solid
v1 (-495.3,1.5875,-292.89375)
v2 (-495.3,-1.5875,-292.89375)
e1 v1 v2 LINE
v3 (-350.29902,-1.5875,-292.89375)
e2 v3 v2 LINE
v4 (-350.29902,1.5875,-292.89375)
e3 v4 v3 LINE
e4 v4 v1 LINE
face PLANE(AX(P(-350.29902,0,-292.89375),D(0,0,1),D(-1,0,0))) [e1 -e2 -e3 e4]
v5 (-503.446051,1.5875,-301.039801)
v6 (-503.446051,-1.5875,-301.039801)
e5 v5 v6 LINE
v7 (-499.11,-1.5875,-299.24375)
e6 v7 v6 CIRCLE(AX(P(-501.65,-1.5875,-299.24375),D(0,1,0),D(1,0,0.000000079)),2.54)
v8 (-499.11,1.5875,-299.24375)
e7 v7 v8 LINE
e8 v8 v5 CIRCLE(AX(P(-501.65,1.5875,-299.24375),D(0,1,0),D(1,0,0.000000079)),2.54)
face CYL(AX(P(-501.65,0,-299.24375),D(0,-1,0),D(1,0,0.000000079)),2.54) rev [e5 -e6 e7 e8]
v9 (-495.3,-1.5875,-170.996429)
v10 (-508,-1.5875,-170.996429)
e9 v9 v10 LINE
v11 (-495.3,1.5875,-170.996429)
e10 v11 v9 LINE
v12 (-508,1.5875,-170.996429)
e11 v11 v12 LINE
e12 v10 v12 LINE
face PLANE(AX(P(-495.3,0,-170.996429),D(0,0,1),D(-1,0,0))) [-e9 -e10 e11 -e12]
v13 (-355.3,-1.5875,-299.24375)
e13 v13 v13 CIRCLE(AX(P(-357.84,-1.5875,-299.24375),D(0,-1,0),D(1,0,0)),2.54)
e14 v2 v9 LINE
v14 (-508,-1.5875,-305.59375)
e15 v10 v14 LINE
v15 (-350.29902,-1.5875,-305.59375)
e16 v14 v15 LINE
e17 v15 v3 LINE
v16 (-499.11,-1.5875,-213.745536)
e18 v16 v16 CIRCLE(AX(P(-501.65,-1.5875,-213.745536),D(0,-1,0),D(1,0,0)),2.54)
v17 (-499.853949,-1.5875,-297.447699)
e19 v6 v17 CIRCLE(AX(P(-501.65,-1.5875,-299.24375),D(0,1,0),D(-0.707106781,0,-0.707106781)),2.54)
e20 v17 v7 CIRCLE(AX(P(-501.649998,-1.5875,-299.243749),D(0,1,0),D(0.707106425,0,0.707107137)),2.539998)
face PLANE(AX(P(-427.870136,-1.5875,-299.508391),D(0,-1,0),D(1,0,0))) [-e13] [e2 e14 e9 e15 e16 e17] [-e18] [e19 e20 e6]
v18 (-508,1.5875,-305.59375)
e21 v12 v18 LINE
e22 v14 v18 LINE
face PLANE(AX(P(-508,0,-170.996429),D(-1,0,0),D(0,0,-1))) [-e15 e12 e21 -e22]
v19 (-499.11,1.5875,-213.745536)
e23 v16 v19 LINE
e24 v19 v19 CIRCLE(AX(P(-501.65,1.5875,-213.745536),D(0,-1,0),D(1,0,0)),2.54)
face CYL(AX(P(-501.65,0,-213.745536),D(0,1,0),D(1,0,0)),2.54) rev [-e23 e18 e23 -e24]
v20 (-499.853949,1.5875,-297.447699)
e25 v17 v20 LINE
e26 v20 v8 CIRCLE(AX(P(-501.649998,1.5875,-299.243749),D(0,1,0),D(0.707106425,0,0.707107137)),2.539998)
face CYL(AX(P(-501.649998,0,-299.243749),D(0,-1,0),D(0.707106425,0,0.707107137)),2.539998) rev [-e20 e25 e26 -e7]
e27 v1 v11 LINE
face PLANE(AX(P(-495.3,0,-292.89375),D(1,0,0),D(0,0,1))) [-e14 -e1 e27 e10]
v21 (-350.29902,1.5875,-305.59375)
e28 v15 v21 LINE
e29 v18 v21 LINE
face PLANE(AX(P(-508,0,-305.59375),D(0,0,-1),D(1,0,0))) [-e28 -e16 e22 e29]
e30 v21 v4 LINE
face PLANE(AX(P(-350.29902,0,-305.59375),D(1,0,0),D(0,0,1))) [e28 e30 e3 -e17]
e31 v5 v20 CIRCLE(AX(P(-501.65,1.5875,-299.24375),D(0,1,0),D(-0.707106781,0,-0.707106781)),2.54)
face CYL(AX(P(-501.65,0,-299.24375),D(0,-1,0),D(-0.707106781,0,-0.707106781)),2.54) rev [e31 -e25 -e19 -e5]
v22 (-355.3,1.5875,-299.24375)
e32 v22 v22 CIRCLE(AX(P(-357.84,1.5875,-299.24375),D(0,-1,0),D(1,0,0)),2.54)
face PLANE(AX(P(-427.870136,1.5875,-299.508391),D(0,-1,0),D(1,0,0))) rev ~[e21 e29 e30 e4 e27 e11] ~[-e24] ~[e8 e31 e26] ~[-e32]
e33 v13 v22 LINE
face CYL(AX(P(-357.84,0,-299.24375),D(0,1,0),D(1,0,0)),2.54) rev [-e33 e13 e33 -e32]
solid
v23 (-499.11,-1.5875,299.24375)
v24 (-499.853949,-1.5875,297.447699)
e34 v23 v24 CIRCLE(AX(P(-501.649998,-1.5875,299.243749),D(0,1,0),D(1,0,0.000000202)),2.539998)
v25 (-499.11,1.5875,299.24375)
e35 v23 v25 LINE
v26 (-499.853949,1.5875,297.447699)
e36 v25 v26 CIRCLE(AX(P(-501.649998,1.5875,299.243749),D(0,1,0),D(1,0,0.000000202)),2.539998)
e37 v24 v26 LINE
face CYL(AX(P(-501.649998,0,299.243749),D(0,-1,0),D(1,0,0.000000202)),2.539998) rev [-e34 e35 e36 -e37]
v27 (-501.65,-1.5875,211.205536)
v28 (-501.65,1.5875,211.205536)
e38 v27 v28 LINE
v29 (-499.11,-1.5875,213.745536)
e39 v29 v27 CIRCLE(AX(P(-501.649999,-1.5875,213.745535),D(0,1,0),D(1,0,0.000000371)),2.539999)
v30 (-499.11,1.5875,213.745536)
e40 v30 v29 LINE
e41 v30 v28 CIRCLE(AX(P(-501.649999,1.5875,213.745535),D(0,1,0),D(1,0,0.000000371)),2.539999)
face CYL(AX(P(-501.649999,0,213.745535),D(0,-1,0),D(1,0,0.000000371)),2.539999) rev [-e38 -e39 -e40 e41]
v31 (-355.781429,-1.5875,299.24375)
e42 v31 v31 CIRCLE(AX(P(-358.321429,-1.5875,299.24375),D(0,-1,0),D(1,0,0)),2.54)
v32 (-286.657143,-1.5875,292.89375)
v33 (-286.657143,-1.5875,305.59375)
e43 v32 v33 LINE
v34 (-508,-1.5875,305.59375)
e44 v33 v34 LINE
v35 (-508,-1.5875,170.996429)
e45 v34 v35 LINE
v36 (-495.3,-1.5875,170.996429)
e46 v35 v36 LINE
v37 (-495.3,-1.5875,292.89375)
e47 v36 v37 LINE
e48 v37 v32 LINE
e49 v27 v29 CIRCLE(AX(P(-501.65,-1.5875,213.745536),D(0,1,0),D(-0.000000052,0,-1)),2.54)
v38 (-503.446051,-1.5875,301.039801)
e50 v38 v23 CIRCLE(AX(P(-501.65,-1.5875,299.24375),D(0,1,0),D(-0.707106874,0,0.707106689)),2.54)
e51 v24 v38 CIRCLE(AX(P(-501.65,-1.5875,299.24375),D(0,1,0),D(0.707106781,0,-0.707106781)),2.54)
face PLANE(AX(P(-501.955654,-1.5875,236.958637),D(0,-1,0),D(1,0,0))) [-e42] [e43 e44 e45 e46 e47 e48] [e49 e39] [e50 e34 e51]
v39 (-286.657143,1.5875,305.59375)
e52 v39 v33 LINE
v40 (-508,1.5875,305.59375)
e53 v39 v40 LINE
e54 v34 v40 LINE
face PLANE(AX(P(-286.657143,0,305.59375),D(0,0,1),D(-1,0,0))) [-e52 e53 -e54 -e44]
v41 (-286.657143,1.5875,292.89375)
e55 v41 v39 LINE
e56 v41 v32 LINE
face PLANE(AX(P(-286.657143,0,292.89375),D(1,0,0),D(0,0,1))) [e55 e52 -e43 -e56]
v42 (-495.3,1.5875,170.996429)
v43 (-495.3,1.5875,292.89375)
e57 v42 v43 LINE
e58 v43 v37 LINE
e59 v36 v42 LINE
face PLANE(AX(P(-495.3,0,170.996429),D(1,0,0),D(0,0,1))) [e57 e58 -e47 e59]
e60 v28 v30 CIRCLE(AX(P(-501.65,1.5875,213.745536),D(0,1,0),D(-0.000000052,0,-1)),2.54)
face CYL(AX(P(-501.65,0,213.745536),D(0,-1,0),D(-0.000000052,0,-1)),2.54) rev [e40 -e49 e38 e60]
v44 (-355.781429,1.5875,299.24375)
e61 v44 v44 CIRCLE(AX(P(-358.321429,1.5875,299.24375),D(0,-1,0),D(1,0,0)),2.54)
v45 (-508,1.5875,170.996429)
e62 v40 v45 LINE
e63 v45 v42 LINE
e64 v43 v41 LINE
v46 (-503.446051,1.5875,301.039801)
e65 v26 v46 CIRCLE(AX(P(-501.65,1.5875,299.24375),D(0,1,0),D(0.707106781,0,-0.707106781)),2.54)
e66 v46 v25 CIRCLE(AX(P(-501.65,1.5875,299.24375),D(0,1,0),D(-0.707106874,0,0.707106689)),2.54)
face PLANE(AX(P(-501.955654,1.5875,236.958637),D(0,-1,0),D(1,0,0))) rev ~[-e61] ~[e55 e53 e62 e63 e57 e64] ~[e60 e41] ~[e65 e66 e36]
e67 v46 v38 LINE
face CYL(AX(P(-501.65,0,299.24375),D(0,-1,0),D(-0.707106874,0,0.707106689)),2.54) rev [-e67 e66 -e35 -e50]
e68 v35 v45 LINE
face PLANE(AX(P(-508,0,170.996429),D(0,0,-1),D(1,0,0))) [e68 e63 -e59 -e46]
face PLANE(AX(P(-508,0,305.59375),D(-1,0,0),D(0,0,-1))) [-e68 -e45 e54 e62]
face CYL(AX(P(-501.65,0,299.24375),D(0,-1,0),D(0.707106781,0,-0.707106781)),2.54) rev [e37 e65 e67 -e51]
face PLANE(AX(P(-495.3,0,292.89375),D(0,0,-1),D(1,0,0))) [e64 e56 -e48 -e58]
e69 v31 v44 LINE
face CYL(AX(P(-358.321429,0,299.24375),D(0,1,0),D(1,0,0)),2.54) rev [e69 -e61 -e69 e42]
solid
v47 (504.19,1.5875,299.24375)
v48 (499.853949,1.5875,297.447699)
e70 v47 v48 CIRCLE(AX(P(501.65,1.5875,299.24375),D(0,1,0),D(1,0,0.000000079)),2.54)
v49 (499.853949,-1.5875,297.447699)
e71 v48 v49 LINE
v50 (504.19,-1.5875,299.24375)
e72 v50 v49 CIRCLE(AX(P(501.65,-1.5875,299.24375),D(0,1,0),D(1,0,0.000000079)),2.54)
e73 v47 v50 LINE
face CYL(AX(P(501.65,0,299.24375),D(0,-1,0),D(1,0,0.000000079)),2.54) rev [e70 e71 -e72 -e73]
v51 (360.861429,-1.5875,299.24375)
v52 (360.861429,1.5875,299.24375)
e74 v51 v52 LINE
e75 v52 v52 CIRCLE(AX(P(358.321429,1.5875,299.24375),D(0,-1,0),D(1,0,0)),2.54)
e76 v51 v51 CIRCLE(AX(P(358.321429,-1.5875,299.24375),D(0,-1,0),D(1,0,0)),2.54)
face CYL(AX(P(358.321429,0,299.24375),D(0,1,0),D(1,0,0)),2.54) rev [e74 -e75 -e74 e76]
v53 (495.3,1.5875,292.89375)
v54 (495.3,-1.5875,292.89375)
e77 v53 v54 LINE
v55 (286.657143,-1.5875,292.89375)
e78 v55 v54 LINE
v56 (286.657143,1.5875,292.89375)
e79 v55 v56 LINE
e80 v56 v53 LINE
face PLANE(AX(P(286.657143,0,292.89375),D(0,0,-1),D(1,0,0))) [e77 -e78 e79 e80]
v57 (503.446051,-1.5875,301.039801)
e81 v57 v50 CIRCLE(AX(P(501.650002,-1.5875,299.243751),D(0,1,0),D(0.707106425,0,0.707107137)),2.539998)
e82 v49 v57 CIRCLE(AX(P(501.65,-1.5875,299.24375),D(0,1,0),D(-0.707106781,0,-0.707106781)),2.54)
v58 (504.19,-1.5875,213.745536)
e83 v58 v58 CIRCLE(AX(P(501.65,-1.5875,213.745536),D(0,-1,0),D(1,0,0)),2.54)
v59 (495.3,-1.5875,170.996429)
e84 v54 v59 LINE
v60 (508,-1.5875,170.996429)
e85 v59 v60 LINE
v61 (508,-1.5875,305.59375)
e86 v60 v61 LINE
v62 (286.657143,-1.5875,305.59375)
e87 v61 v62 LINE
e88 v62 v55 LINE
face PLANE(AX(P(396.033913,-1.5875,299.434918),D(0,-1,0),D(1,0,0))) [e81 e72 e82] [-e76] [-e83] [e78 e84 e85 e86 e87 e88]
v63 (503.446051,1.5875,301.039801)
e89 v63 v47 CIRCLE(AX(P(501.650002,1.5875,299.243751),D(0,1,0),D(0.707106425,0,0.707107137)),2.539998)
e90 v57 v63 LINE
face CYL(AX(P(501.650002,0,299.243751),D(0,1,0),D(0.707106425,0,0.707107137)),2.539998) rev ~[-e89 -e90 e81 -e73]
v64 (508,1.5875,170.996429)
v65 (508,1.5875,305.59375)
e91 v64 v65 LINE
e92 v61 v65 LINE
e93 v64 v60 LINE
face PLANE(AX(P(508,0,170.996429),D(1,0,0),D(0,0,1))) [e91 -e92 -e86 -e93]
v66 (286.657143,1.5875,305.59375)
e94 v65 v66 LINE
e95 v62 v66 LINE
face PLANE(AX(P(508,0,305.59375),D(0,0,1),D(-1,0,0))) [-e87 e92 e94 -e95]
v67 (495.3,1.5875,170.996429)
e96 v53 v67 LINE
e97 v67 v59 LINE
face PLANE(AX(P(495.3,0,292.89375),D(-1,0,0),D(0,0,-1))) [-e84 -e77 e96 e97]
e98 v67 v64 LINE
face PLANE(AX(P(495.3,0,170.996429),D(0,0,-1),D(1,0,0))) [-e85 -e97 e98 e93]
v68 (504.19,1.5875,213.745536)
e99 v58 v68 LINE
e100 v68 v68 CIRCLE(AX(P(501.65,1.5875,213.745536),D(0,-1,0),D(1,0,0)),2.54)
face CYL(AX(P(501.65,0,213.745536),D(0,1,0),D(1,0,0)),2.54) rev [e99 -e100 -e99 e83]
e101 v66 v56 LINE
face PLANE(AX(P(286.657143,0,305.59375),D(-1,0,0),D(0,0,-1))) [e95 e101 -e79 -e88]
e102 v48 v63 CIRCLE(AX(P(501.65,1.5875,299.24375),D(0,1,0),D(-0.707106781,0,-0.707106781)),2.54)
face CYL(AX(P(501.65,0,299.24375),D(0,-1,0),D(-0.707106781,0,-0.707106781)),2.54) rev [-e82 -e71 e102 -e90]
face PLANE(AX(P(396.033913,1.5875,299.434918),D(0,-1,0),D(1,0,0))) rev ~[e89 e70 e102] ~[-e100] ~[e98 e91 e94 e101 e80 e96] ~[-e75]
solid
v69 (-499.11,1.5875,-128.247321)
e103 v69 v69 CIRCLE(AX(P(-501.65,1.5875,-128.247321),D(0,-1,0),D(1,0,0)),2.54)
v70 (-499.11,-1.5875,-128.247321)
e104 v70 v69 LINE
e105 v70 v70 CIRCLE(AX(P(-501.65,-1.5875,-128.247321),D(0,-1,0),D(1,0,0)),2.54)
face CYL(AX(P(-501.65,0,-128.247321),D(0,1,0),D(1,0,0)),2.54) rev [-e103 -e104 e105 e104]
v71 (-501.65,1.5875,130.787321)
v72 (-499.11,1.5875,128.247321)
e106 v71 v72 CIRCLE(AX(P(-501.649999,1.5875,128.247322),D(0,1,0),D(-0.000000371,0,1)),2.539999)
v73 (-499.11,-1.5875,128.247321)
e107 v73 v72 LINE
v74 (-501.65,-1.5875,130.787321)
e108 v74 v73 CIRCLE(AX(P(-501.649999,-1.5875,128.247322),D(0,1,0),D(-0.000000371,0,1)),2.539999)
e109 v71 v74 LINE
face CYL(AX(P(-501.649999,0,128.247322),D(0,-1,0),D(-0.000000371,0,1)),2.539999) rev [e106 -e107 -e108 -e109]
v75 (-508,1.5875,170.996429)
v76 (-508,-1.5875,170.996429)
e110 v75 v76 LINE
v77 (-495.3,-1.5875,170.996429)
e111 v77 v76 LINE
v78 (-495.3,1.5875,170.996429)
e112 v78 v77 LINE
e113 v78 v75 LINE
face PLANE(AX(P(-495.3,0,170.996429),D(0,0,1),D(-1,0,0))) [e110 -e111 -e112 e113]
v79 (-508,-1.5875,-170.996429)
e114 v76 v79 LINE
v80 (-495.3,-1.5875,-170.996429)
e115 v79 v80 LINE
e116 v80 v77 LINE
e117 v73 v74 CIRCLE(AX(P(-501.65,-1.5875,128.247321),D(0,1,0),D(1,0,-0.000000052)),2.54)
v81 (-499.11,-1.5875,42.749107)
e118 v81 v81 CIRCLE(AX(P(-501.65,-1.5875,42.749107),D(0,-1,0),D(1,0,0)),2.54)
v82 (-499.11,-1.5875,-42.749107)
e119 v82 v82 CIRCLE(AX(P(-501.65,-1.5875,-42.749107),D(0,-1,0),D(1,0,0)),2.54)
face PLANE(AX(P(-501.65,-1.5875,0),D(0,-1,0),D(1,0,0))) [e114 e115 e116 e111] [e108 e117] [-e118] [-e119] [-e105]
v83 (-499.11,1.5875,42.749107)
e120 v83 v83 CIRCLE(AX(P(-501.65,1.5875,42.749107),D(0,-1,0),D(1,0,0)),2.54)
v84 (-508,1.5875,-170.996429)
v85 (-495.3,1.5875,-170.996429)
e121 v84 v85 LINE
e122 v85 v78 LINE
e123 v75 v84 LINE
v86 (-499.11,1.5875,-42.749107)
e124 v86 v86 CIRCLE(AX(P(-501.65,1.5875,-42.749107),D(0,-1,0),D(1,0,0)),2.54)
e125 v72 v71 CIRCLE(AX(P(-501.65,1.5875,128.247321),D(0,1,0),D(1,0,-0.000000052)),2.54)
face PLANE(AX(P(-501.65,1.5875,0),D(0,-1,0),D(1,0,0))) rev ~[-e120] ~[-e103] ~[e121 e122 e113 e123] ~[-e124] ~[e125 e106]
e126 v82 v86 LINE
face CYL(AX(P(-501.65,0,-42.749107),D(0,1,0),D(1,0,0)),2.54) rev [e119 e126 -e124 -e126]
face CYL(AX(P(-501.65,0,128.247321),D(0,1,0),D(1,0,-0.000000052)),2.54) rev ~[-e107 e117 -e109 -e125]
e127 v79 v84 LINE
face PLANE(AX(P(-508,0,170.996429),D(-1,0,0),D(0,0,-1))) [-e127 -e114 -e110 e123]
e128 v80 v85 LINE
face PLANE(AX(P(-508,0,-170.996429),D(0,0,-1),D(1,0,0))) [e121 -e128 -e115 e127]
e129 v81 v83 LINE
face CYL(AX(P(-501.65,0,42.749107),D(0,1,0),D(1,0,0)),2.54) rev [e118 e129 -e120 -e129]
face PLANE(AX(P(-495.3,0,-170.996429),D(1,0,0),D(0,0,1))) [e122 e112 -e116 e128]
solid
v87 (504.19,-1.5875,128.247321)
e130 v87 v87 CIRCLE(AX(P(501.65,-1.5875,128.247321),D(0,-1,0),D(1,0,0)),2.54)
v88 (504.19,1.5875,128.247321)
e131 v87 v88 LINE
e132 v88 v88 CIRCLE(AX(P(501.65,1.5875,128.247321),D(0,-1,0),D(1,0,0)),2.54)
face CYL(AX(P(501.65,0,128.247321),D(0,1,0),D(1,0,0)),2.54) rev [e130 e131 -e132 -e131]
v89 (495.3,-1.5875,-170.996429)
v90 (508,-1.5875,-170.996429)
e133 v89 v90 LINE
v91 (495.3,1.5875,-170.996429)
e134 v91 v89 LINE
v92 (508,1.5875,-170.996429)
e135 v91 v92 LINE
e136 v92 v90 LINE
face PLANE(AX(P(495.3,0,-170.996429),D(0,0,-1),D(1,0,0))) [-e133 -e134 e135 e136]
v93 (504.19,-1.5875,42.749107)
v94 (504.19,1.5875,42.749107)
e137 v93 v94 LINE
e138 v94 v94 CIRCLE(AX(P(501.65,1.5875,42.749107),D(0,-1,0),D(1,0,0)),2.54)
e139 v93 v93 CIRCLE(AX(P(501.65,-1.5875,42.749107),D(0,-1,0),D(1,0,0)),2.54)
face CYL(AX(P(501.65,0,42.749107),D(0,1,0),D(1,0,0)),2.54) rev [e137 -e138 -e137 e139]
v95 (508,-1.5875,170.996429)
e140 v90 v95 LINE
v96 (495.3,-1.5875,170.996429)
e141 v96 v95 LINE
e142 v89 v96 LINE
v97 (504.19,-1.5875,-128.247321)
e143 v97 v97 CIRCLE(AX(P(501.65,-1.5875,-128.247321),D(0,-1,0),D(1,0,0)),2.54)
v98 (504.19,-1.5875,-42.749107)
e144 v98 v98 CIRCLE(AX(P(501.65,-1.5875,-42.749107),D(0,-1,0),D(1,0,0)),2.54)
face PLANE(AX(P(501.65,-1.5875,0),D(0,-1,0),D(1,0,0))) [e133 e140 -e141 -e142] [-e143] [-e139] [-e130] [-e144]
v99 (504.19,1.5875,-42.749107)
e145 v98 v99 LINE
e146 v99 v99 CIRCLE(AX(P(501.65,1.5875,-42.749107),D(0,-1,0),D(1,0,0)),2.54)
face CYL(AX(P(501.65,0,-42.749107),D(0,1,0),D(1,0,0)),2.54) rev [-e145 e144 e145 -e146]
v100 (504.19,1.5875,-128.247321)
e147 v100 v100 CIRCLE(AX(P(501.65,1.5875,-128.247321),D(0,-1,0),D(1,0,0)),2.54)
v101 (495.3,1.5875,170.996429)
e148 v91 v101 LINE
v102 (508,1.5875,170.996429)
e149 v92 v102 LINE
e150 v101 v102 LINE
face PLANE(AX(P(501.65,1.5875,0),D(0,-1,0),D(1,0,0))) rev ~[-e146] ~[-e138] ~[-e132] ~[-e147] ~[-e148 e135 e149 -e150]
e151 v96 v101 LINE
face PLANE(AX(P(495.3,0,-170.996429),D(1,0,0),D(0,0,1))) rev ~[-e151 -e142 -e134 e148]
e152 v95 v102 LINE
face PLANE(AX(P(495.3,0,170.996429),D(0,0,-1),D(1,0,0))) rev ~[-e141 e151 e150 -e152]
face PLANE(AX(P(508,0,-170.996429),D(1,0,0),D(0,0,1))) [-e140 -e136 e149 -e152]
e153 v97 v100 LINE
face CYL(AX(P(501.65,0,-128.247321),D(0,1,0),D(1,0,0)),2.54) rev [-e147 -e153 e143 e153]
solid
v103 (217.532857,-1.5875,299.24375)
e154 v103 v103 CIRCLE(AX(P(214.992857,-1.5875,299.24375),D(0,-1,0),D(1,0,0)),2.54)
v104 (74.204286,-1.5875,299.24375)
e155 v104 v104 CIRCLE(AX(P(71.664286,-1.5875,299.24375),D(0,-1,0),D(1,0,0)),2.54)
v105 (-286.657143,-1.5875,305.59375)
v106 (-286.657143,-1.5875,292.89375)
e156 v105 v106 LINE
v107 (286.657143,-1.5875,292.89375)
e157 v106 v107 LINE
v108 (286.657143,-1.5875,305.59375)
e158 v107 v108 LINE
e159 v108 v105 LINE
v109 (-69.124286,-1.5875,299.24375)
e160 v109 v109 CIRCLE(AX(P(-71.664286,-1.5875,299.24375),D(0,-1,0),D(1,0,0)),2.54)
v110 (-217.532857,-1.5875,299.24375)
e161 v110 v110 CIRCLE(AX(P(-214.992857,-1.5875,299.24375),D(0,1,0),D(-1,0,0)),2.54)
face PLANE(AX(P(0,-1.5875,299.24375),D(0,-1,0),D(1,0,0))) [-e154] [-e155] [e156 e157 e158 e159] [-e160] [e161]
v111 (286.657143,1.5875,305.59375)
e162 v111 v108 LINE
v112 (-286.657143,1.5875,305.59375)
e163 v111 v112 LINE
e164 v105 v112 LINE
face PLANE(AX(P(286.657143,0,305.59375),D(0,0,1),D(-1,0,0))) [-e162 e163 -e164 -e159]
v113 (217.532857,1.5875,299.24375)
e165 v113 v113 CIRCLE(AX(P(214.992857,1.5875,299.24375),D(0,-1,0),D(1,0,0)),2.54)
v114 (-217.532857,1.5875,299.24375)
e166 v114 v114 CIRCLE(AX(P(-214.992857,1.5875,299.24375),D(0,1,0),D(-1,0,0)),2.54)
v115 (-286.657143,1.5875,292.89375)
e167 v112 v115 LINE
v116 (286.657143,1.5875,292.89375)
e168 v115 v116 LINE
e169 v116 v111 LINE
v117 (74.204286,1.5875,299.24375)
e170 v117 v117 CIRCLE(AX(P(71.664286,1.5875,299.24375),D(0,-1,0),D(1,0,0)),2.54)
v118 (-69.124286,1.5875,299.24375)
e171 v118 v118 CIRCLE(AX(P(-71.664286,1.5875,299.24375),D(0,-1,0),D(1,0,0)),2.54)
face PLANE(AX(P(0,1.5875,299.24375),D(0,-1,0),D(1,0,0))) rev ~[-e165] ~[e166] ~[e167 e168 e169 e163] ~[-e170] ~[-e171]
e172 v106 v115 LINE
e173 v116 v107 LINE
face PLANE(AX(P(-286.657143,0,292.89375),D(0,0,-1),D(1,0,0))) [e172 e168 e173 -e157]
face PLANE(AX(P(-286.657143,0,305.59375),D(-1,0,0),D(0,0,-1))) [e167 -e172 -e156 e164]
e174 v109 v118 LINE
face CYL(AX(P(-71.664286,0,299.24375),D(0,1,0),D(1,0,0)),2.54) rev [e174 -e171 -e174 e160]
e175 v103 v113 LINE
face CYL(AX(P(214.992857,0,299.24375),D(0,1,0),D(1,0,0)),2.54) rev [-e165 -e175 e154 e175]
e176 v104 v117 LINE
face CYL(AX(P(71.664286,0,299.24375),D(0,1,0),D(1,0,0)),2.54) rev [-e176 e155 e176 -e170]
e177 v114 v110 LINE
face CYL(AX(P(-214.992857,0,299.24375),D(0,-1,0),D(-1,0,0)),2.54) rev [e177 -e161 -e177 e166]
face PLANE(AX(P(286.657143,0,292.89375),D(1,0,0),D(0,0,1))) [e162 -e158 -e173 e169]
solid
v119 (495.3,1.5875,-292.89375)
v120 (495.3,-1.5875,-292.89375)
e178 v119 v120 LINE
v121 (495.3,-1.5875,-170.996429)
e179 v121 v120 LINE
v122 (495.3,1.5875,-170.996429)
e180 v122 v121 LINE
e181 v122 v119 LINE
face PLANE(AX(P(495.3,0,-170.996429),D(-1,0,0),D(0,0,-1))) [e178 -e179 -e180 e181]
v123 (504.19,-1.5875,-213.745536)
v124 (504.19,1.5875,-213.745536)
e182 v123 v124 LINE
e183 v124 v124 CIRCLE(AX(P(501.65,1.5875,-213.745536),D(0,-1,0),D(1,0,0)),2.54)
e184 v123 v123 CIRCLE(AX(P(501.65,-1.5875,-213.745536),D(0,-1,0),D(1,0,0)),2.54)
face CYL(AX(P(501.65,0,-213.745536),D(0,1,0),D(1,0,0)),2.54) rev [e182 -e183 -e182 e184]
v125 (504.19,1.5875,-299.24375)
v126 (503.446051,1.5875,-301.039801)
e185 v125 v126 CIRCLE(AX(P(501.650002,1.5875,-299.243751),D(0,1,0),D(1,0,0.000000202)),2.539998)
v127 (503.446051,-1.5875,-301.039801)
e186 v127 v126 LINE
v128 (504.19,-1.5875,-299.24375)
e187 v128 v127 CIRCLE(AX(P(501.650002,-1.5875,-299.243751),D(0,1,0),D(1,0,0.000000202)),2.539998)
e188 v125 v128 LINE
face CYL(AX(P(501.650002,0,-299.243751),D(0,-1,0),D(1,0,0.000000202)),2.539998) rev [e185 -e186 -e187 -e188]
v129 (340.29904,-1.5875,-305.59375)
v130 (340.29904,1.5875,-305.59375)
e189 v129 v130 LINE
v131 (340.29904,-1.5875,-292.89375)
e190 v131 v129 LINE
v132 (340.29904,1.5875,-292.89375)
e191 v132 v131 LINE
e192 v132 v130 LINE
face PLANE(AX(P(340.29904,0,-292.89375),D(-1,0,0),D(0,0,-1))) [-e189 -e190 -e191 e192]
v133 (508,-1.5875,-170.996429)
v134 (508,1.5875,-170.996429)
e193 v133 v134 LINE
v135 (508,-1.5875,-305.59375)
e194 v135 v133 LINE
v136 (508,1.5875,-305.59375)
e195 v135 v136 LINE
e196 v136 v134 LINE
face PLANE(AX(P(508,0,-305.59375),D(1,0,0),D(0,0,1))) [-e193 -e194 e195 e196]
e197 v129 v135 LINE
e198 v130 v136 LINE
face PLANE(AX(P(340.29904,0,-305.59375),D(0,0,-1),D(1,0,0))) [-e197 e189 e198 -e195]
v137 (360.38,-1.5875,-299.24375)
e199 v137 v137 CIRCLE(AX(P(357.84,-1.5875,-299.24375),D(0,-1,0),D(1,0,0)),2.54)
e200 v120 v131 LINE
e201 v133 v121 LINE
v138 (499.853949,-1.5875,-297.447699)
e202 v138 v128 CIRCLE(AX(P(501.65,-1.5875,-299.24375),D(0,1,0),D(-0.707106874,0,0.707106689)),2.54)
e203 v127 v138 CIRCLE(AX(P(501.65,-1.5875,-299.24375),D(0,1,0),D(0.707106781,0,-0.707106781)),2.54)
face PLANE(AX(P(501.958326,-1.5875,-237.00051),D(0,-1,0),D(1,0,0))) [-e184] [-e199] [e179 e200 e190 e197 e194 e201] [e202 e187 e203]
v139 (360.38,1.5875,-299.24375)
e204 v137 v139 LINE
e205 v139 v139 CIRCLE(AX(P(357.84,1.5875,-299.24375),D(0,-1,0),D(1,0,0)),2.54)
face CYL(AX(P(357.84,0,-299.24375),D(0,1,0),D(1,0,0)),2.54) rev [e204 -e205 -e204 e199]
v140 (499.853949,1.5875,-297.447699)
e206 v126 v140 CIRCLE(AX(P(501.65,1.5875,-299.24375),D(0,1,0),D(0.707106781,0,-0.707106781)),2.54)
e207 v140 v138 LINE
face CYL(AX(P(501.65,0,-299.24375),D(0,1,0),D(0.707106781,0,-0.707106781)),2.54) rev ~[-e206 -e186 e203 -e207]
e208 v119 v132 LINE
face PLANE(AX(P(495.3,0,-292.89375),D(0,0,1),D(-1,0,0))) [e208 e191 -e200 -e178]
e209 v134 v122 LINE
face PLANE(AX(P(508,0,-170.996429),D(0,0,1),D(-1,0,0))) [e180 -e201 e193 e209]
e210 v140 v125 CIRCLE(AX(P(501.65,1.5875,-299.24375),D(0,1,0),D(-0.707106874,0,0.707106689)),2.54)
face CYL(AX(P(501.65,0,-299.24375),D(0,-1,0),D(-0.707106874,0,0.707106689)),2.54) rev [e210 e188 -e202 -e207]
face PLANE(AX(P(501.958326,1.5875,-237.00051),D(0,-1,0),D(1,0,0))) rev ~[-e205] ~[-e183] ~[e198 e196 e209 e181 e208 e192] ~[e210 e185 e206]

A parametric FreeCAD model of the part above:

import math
import FreeCAD as App
import Part
import Sketcher
from FreeCAD import Vector
Q = App.Units.Quantity

doc = App.newDocument("Part")
body = doc.addObject("PartDesign::Body", "Body")

# Sketch on XZ plane
sketch1 = doc.addObject("Sketcher::SketchObject", "Sketch")
body.addObject(sketch1)
sketch1.AttachmentSupport = (doc.XZ_Plane, [""])
sketch1.MapMode = "FlatFace"
sketch1.addGeometry([
    Part.LineSegment(Vector(-495.3, 170.996429, 0), Vector(-495.3, 292.89375, 0)),  # 0
    Part.LineSegment(Vector(-495.3, 292.89375, 0), Vector(-286.657143, 292.89375, 0)),  # 1
    Part.LineSegment(Vector(-286.657143, 292.89375, 0), Vector(-286.657143, 305.59375, 0)),  # 2
    Part.LineSegment(Vector(-286.657143, 305.59375, 0), Vector(-508, 305.59375, 0)),  # 3
    Part.LineSegment(Vector(-508, 305.59375, 0), Vector(-508, 170.996429, 0)),  # 4
    Part.LineSegment(Vector(-508, 170.996429, 0), Vector(-495.3, 170.996429, 0)),  # 5
    Part.ArcOfCircle(Part.Circle(Vector(-501.65, 213.745536, 0), Vector(0, 0, 1), 2.54), math.radians(0.000003), math.radians(269.999997)),  # 6
    Part.ArcOfCircle(Part.Circle(Vector(-501.649999, 213.745535, 0), Vector(0, 0, 1), 2.539999), math.radians(-90.000021), math.radians(0.000021)),  # 7
    Part.ArcOfCircle(Part.Circle(Vector(-501.65, 299.24375, 0), Vector(0, 0, 1), 2.54), math.radians(135), math.radians(315)),  # 8
    Part.ArcOfCircle(Part.Circle(Vector(-501.65, 299.24375, 0), Vector(0, 0, 1), 2.54), math.radians(-0.000005), math.radians(135.000007)),  # 9
    Part.ArcOfCircle(Part.Circle(Vector(-501.649998, 299.243749, 0), Vector(0, 0, 1), 2.539998), math.radians(-45.000029), math.radians(0.000012)),  # 10
    Part.Circle(Vector(-358.321429, 299.24375, 0), Vector(0, 0, 1), 2.54),  # 11
], False)
sketch1.addConstraint([
    Sketcher.Constraint("Coincident", 0, 2, 1, 1),
    Sketcher.Constraint("Coincident", 1, 2, 2, 1),
    Sketcher.Constraint("Coincident", 2, 2, 3, 1),
    Sketcher.Constraint("Coincident", 3, 2, 4, 1),
    Sketcher.Constraint("Coincident", 4, 2, 5, 1),
    Sketcher.Constraint("Coincident", 5, 2, 0, 1),
    Sketcher.Constraint("Tangent", 6, 1, 7, 2),
    Sketcher.Constraint("Coincident", 7, 1, 6, 2),
    Sketcher.Constraint("Tangent", 8, 1, 9, 2),
    Sketcher.Constraint("Tangent", 9, 1, 10, 2),
    Sketcher.Constraint("Tangent", 10, 1, 8, 2),
    Sketcher.Constraint("Vertical", 0),
    Sketcher.Constraint("Horizontal", 1),
    Sketcher.Constraint("Vertical", 2),
    Sketcher.Constraint("Horizontal", 3),
    Sketcher.Constraint("Vertical", 4),
    Sketcher.Constraint("Horizontal", 5),
    Sketcher.Constraint("Equal", 7, 8),
    Sketcher.Constraint("Equal", 9, 11),
    Sketcher.Constraint("Horizontal", 10, 3, 11, 3),
    Sketcher.Constraint("Horizontal", 7, 3, 6, 1),
    Sketcher.Constraint("Horizontal", 11, 3, 9, 1),
    Sketcher.Constraint("Vertical", 7, 3, 8, 3),
    Sketcher.Constraint("Vertical", 9, 3, 7, 1),
    Sketcher.Constraint("Equal", 5, 2),
    Sketcher.Constraint("Diameter", 11, Q("0.2 in")),
    Sketcher.Constraint("DistanceX", 5, 1, 5, 2, Q("0.5 in")),
    Sketcher.Constraint("DistanceX", 3, 2, -1, 1, Q("20 in")),
    Sketcher.Constraint("DistanceX", 6, 3, -1, 1, Q("19.75 in")),
    Sketcher.Constraint("DistanceY", 0, 2, 10, 3, Q("0.25 in")),
    Sketcher.Constraint("DistanceY", -1, 1, 8, 3, Q("11.78125 in")),
    Sketcher.Constraint("DistanceY", 0, 1, 0, 2, 121.897321),
    Sketcher.Constraint("DistanceY", -1, 1, 8, 1, 301.039801),
    Sketcher.Constraint("DistanceY", -1, 1, 10, 1, 297.447699),
    Sketcher.Constraint("DistanceX", 1, 1, 1, 2, 208.642857),
    Sketcher.Constraint("DistanceX", 11, 3, -1, 1, 358.321429),
    Sketcher.Constraint("DistanceY", -1, 1, 6, 3, 213.745536),
])
pad1 = doc.addObject("PartDesign::Pad", "Pad")
body.addObject(pad1)
pad1.Profile = sketch1
pad1.Length = Q("0.125 in")
pad1.Midplane = True
body2 = doc.addObject("PartDesign::Body", "Body001")

# Sketch on XZ plane
sketch2 = doc.addObject("Sketcher::SketchObject", "Sketch001")
body2.addObject(sketch2)
sketch2.AttachmentSupport = (doc.getObject("XZ_Plane001"), [""])
sketch2.MapMode = "FlatFace"
sketch2.addGeometry([
    Part.LineSegment(Vector(-286.657143, 292.89375, 0), Vector(286.657143, 292.89375, 0)),  # 0
    Part.LineSegment(Vector(286.657143, 292.89375, 0), Vector(286.657143, 305.59375, 0)),  # 1
    Part.LineSegment(Vector(286.657143, 305.59375, 0), Vector(-286.657143, 305.59375, 0)),  # 2
    Part.LineSegment(Vector(-286.657143, 305.59375, 0), Vector(-286.657143, 292.89375, 0)),  # 3
    Part.Circle(Vector(-214.992857, 299.24375, 0), Vector(0, 0, 1), 2.54),  # 4
    Part.Circle(Vector(-71.664286, 299.24375, 0), Vector(0, 0, 1), 2.54),  # 5
    Part.Circle(Vector(71.664286, 299.24375, 0), Vector(0, 0, 1), 2.54),  # 6
    Part.Circle(Vector(214.992857, 299.24375, 0), Vector(0, 0, 1), 2.54),  # 7
], False)
sketch2.addConstraint([
    Sketcher.Constraint("Coincident", 0, 2, 1, 1),
    Sketcher.Constraint("Coincident", 1, 2, 2, 1),
    Sketcher.Constraint("Coincident", 2, 2, 3, 1),
    Sketcher.Constraint("Coincident", 3, 2, 0, 1),
    Sketcher.Constraint("Horizontal", 0),
    Sketcher.Constraint("Vertical", 1),
    Sketcher.Constraint("Horizontal", 2),
    Sketcher.Constraint("Vertical", 3),
    Sketcher.Constraint("Equal", 4, 5),
    Sketcher.Constraint("Equal", 5, 6),
    Sketcher.Constraint("Equal", 6, 7),
    Sketcher.Constraint("Symmetric", 5, 3, 6, 3, -2),
    Sketcher.Constraint("Symmetric", 4, 3, 7, 3, -2),
    Sketcher.Constraint("Horizontal", 4, 3, 5, 3),
    Sketcher.Constraint("Diameter", 4, Q("0.2 in")),
    Sketcher.Constraint("DistanceY", 1, 1, 1, 2, Q("0.5 in")),
    Sketcher.Constraint("DistanceY", 0, 2, 7, 3, Q("0.25 in")),
    Sketcher.Constraint("DistanceX", 4, 3, 0, 2, Q("19.75 in")),
    Sketcher.Constraint("DistanceX", 2, 2, 7, 3, Q("19.75 in")),
    Sketcher.Constraint("DistanceY", -1, 1, 4, 3, Q("11.78125 in")),
    Sketcher.Constraint("DistanceX", 0, 1, 0, 2, 573.314286),
    Sketcher.Constraint("DistanceX", 4, 3, 5, 3, 143.328571),
])
pad2 = doc.addObject("PartDesign::Pad", "Pad001")
body2.addObject(pad2)
pad2.Profile = sketch2
pad2.Length = Q("0.125 in")
pad2.Midplane = True
body3 = doc.addObject("PartDesign::Body", "Body002")

# Sketch on XZ plane
sketch3 = doc.addObject("Sketcher::SketchObject", "Sketch002")
body3.addObject(sketch3)
sketch3.AttachmentSupport = (doc.getObject("XZ_Plane002"), [""])
sketch3.MapMode = "FlatFace"
sketch3.addGeometry([
    Part.LineSegment(Vector(286.657143, 292.89375, 0), Vector(495.3, 292.89375, 0)),  # 0
    Part.LineSegment(Vector(495.3, 292.89375, 0), Vector(495.3, 170.996429, 0)),  # 1
    Part.LineSegment(Vector(495.3, 170.996429, 0), Vector(508, 170.996429, 0)),  # 2
    Part.LineSegment(Vector(508, 170.996429, 0), Vector(508, 305.59375, 0)),  # 3
    Part.LineSegment(Vector(508, 305.59375, 0), Vector(286.657143, 305.59375, 0)),  # 4
    Part.LineSegment(Vector(286.657143, 305.59375, 0), Vector(286.657143, 292.89375, 0)),  # 5
    Part.Circle(Vector(501.65, 213.745536, 0), Vector(0, 0, 1), 2.54),  # 6
    Part.Circle(Vector(358.321429, 299.24375, 0), Vector(0, 0, 1), 2.54),  # 7
    Part.ArcOfCircle(Part.Circle(Vector(501.65, 299.24375, 0), Vector(0, 0, 1), 2.54), math.radians(45), math.radians(225)),  # 8
    Part.ArcOfCircle(Part.Circle(Vector(501.650002, 299.243751, 0), Vector(0, 0, 1), 2.539998), math.radians(-0.000012), math.radians(45.000029)),  # 9
    Part.ArcOfCircle(Part.Circle(Vector(501.65, 299.24375, 0), Vector(0, 0, 1), 2.54), math.radians(-135.000007), math.radians(0.000005)),  # 10
], False)
sketch3.addConstraint([
    Sketcher.Constraint("Coincident", 0, 2, 1, 1),
    Sketcher.Constraint("Coincident", 1, 2, 2, 1),
    Sketcher.Constraint("Coincident", 2, 2, 3, 1),
    Sketcher.Constraint("Coincident", 3, 2, 4, 1),
    Sketcher.Constraint("Coincident", 4, 2, 5, 1),
    Sketcher.Constraint("Coincident", 5, 2, 0, 1),
    Sketcher.Constraint("Tangent", 8, 1, 9, 2),
    Sketcher.Constraint("Tangent", 9, 1, 10, 2),
    Sketcher.Constraint("Tangent", 10, 1, 8, 2),
    Sketcher.Constraint("Horizontal", 0),
    Sketcher.Constraint("Vertical", 1),
    Sketcher.Constraint("Horizontal", 2),
    Sketcher.Constraint("Vertical", 3),
    Sketcher.Constraint("Horizontal", 4),
    Sketcher.Constraint("Vertical", 5),
    Sketcher.Constraint("Equal", 6, 7),
    Sketcher.Constraint("Equal", 7, 8),
    Sketcher.Constraint("Horizontal", 7, 3, 8, 3),
    Sketcher.Constraint("Horizontal", 10, 3, 9, 1),
    Sketcher.Constraint("Vertical", 6, 3, 8, 3),
    Sketcher.Constraint("Equal", 2, 5),
    Sketcher.Constraint("Diameter", 6, Q("0.2 in")),
    Sketcher.Constraint("DistanceX", 2, 1, 2, 2, Q("0.5 in")),
    Sketcher.Constraint("DistanceX", -1, 1, 2, 2, Q("20 in")),
    Sketcher.Constraint("DistanceX", -1, 1, 6, 3, Q("19.75 in")),
    Sketcher.Constraint("DistanceY", 0, 2, 8, 3, Q("0.25 in")),
    Sketcher.Constraint("DistanceY", -1, 1, 7, 3, Q("11.78125 in")),
    Sketcher.Constraint("DistanceY", 1, 2, 1, 1, 121.897321),
    Sketcher.Constraint("DistanceY", -1, 1, 8, 1, 301.039801),
    Sketcher.Constraint("DistanceY", -1, 1, 10, 1, 297.447699),
    Sketcher.Constraint("DistanceX", 0, 1, 0, 2, 208.642857),
    Sketcher.Constraint("DistanceX", -1, 1, 7, 3, 358.321429),
    Sketcher.Constraint("DistanceY", -1, 1, 6, 3, 213.745536),
])
pad3 = doc.addObject("PartDesign::Pad", "Pad002")
body3.addObject(pad3)
pad3.Profile = sketch3
pad3.Length = Q("0.125 in")
pad3.Midplane = True
body4 = doc.addObject("PartDesign::Body", "Body003")

# Sketch on XZ plane
sketch4 = doc.addObject("Sketcher::SketchObject", "Sketch003")
body4.addObject(sketch4)
sketch4.AttachmentSupport = (doc.getObject("XZ_Plane003"), [""])
sketch4.MapMode = "FlatFace"
sketch4.addGeometry([
    Part.LineSegment(Vector(495.3, 170.996429, 0), Vector(495.3, -170.996429, 0)),  # 0
    Part.LineSegment(Vector(495.3, -170.996429, 0), Vector(508, -170.996429, 0)),  # 1
    Part.LineSegment(Vector(508, -170.996429, 0), Vector(508, 170.996429, 0)),  # 2
    Part.LineSegment(Vector(508, 170.996429, 0), Vector(495.3, 170.996429, 0)),  # 3
    Part.Circle(Vector(501.65, -128.247321, 0), Vector(0, 0, 1), 2.54),  # 4
    Part.Circle(Vector(501.65, -42.749107, 0), Vector(0, 0, 1), 2.54),  # 5
    Part.Circle(Vector(501.65, 42.749107, 0), Vector(0, 0, 1), 2.54),  # 6
    Part.Circle(Vector(501.65, 128.247321, 0), Vector(0, 0, 1), 2.54),  # 7
], False)
sketch4.addConstraint([
    Sketcher.Constraint("Coincident", 0, 2, 1, 1),
    Sketcher.Constraint("Coincident", 1, 2, 2, 1),
    Sketcher.Constraint("Coincident", 2, 2, 3, 1),
    Sketcher.Constraint("Coincident", 3, 2, 0, 1),
    Sketcher.Constraint("Vertical", 0),
    Sketcher.Constraint("Horizontal", 1),
    Sketcher.Constraint("Vertical", 2),
    Sketcher.Constraint("Horizontal", 3),
    Sketcher.Constraint("Equal", 4, 5),
    Sketcher.Constraint("Equal", 5, 6),
    Sketcher.Constraint("Equal", 6, 7),
    Sketcher.Constraint("Symmetric", 5, 3, 6, 3, -1),
    Sketcher.Constraint("Symmetric", 4, 3, 7, 3, -1),
    Sketcher.Constraint("Vertical", 4, 3, 5, 3),
    Sketcher.Constraint("Diameter", 4, Q("0.2 in")),
    Sketcher.Constraint("DistanceX", 1, 1, 1, 2, Q("0.5 in")),
    Sketcher.Constraint("DistanceX", -1, 1, 1, 2, Q("20 in")),
    Sketcher.Constraint("DistanceX", -1, 1, 4, 3, Q("19.75 in")),
    Sketcher.Constraint("DistanceY", 0, 2, 7, 3, Q("11.78125 in")),
    Sketcher.Constraint("DistanceY", 4, 3, 2, 2, Q("11.78125 in")),
    Sketcher.Constraint("DistanceY", 0, 2, 0, 1, 341.992858),
    Sketcher.Constraint("DistanceY", 4, 3, 6, 3, 170.996428),
])
pad4 = doc.addObject("PartDesign::Pad", "Pad003")
body4.addObject(pad4)
pad4.Profile = sketch4
pad4.Length = Q("0.125 in")
pad4.Midplane = True
body5 = doc.addObject("PartDesign::Body", "Body004")

# Sketch on XZ plane
sketch5 = doc.addObject("Sketcher::SketchObject", "Sketch004")
body5.addObject(sketch5)
sketch5.AttachmentSupport = (doc.getObject("XZ_Plane004"), [""])
sketch5.MapMode = "FlatFace"
sketch5.addGeometry([
    Part.LineSegment(Vector(508, -170.996429, 0), Vector(495.3, -170.996429, 0)),  # 0
    Part.LineSegment(Vector(495.3, -170.996429, 0), Vector(495.3, -292.89375, 0)),  # 1
    Part.LineSegment(Vector(495.3, -292.89375, 0), Vector(340.29904, -292.89375, 0)),  # 2
    Part.LineSegment(Vector(340.29904, -292.89375, 0), Vector(340.29904, -305.59375, 0)),  # 3
    Part.LineSegment(Vector(340.29904, -305.59375, 0), Vector(508, -305.59375, 0)),  # 4
    Part.LineSegment(Vector(508, -305.59375, 0), Vector(508, -170.996429, 0)),  # 5
    Part.Circle(Vector(357.84, -299.24375, 0), Vector(0, 0, 1), 2.54),  # 6
    Part.ArcOfCircle(Part.Circle(Vector(501.650002, -299.243751, 0), Vector(0, 0, 1), 2.539998), math.radians(-45.000029), math.radians(0.000012)),  # 7
    Part.ArcOfCircle(Part.Circle(Vector(501.65, -299.24375, 0), Vector(0, 0, 1), 2.54), math.radians(135), math.radians(315)),  # 8
    Part.ArcOfCircle(Part.Circle(Vector(501.65, -299.24375, 0), Vector(0, 0, 1), 2.54), math.radians(-0.000005), math.radians(135.000007)),  # 9
    Part.Circle(Vector(501.65, -213.745536, 0), Vector(0, 0, 1), 2.54),  # 10
], False)
sketch5.addConstraint([
    Sketcher.Constraint("Coincident", 0, 2, 1, 1),
    Sketcher.Constraint("Coincident", 1, 2, 2, 1),
    Sketcher.Constraint("Coincident", 2, 2, 3, 1),
    Sketcher.Constraint("Coincident", 3, 2, 4, 1),
    Sketcher.Constraint("Coincident", 4, 2, 5, 1),
    Sketcher.Constraint("Coincident", 5, 2, 0, 1),
    Sketcher.Constraint("Tangent", 7, 1, 8, 2),
    Sketcher.Constraint("Tangent", 8, 1, 9, 2),
    Sketcher.Constraint("Tangent", 9, 1, 7, 2),
    Sketcher.Constraint("Horizontal", 0),
    Sketcher.Constraint("Vertical", 1),
    Sketcher.Constraint("Horizontal", 2),
    Sketcher.Constraint("Vertical", 3),
    Sketcher.Constraint("Horizontal", 4),
    Sketcher.Constraint("Vertical", 5),
    Sketcher.Constraint("Equal", 6, 8),
    Sketcher.Constraint("Equal", 9, 10),
    Sketcher.Constraint("Horizontal", 6, 3, 7, 3),
    Sketcher.Constraint("Horizontal", 8, 3, 9, 1),
    Sketcher.Constraint("Vertical", 9, 3, 10, 3),
    Sketcher.Constraint("Equal", 0, 3),
    Sketcher.Constraint("Diameter", 6, Q("0.2 in")),
    Sketcher.Constraint("DistanceX", 0, 2, 0, 1, Q("0.5 in")),
    Sketcher.Constraint("DistanceX", -1, 1, 4, 2, Q("20 in")),
    Sketcher.Constraint("DistanceX", -1, 1, 7, 3, Q("19.7500001 in")),
    Sketcher.Constraint("DistanceY", 8, 3, 1, 2, Q("0.25 in")),
    Sketcher.Constraint("DistanceX", 2, 2, 2, 1, Q("6.1024 in")),
    Sketcher.Constraint("DistanceY", 6, 3, -1, 1, Q("11.78125 in")),
    Sketcher.Constraint("DistanceY", 1, 2, 1, 1, 121.897321),
    Sketcher.Constraint("DistanceX", -1, 1, 6, 3, 357.84),
    Sketcher.Constraint("DistanceY", 7, 1, -1, 1, 301.039801),
    Sketcher.Constraint("DistanceY", 8, 1, -1, 1, 297.447699),
    Sketcher.Constraint("DistanceY", 10, 3, -1, 1, 213.745536),
])
pad5 = doc.addObject("PartDesign::Pad", "Pad004")
body5.addObject(pad5)
pad5.Profile = sketch5
pad5.Length = Q("0.125 in")
pad5.Midplane = True
body6 = doc.addObject("PartDesign::Body", "Body005")

# Sketch on XZ plane
sketch6 = doc.addObject("Sketcher::SketchObject", "Sketch005")
body6.addObject(sketch6)
sketch6.AttachmentSupport = (doc.getObject("XZ_Plane005"), [""])
sketch6.MapMode = "FlatFace"
sketch6.addGeometry([
    Part.LineSegment(Vector(-350.29902, -305.59375, 0), Vector(-350.29902, -292.89375, 0)),  # 0
    Part.LineSegment(Vector(-350.29902, -292.89375, 0), Vector(-495.3, -292.89375, 0)),  # 1
    Part.LineSegment(Vector(-495.3, -292.89375, 0), Vector(-495.3, -170.996429, 0)),  # 2
    Part.LineSegment(Vector(-495.3, -170.996429, 0), Vector(-508, -170.996429, 0)),  # 3
    Part.LineSegment(Vector(-508, -170.996429, 0), Vector(-508, -305.59375, 0)),  # 4
    Part.LineSegment(Vector(-508, -305.59375, 0), Vector(-350.29902, -305.59375, 0)),  # 5
    Part.ArcOfCircle(Part.Circle(Vector(-501.65, -299.24375, 0), Vector(0, 0, 1), 2.54), math.radians(-135.000007), math.radians(0.000005)),  # 6
    Part.ArcOfCircle(Part.Circle(Vector(-501.65, -299.24375, 0), Vector(0, 0, 1), 2.54), math.radians(45), math.radians(225)),  # 7
    Part.ArcOfCircle(Part.Circle(Vector(-501.649998, -299.243749, 0), Vector(0, 0, 1), 2.539998), math.radians(-0.000012), math.radians(45.000029)),  # 8
    Part.Circle(Vector(-357.84, -299.24375, 0), Vector(0, 0, 1), 2.54),  # 9
    Part.Circle(Vector(-501.65, -213.745536, 0), Vector(0, 0, 1), 2.54),  # 10
], False)
sketch6.addConstraint([
    Sketcher.Constraint("Coincident", 0, 2, 1, 1),
    Sketcher.Constraint("Coincident", 1, 2, 2, 1),
    Sketcher.Constraint("Coincident", 2, 2, 3, 1),
    Sketcher.Constraint("Coincident", 3, 2, 4, 1),
    Sketcher.Constraint("Coincident", 4, 2, 5, 1),
    Sketcher.Constraint("Coincident", 5, 2, 0, 1),
    Sketcher.Constraint("Tangent", 6, 1, 7, 2),
    Sketcher.Constraint("Tangent", 7, 1, 8, 2),
    Sketcher.Constraint("Tangent", 8, 1, 6, 2),
    Sketcher.Constraint("Vertical", 0),
    Sketcher.Constraint("Horizontal", 1),
    Sketcher.Constraint("Vertical", 2),
    Sketcher.Constraint("Horizontal", 3),
    Sketcher.Constraint("Vertical", 4),
    Sketcher.Constraint("Horizontal", 5),
    Sketcher.Constraint("Equal", 7, 9),
    Sketcher.Constraint("Equal", 9, 10),
    Sketcher.Constraint("Horizontal", 8, 3, 9, 3),
    Sketcher.Constraint("Horizontal", 9, 3, 8, 1),
    Sketcher.Constraint("Vertical", 7, 3, 10, 3),
    Sketcher.Constraint("Equal", 3, 0),
    Sketcher.Constraint("Diameter", 9, Q("0.2 in")),
    Sketcher.Constraint("DistanceX", 3, 2, 3, 1, Q("0.5 in")),
    Sketcher.Constraint("DistanceX", 3, 2, -1, 1, Q("20 in")),
    Sketcher.Constraint("DistanceX", 6, 3, -1, 1, Q("19.75 in")),
    Sketcher.Constraint("DistanceY", 9, 3, 0, 2, Q("0.25 in")),
    Sketcher.Constraint("DistanceX", 1, 2, 1, 1, Q("5.7087 in")),
    Sketcher.Constraint("DistanceY", 6, 3, -1, 1, Q("11.78125 in")),
    Sketcher.Constraint("DistanceY", 2, 1, 2, 2, 121.897321),
    Sketcher.Constraint("DistanceX", 9, 3, -1, 1, 357.84),
    Sketcher.Constraint("DistanceY", 6, 1, -1, 1, 301.039801),
    Sketcher.Constraint("DistanceY", 7, 1, -1, 1, 297.447699),
    Sketcher.Constraint("DistanceY", 10, 3, -1, 1, 213.745536),
])
pad6 = doc.addObject("PartDesign::Pad", "Pad005")
body6.addObject(pad6)
pad6.Profile = sketch6
pad6.Length = Q("0.125 in")
pad6.Midplane = True
body7 = doc.addObject("PartDesign::Body", "Body006")

# Sketch on XZ plane
sketch7 = doc.addObject("Sketcher::SketchObject", "Sketch006")
body7.addObject(sketch7)
sketch7.AttachmentSupport = (doc.getObject("XZ_Plane006"), [""])
sketch7.MapMode = "FlatFace"
sketch7.addGeometry([
    Part.LineSegment(Vector(-495.3, -170.996429, 0), Vector(-495.3, 170.996429, 0)),  # 0
    Part.LineSegment(Vector(-495.3, 170.996429, 0), Vector(-508, 170.996429, 0)),  # 1
    Part.LineSegment(Vector(-508, 170.996429, 0), Vector(-508, -170.996429, 0)),  # 2
    Part.LineSegment(Vector(-508, -170.996429, 0), Vector(-495.3, -170.996429, 0)),  # 3
    Part.Circle(Vector(-501.65, -128.247321, 0), Vector(0, 0, 1), 2.54),  # 4
    Part.Circle(Vector(-501.65, -42.749107, 0), Vector(0, 0, 1), 2.54),  # 5
    Part.Circle(Vector(-501.65, 42.749107, 0), Vector(0, 0, 1), 2.54),  # 6
    Part.ArcOfCircle(Part.Circle(Vector(-501.649999, 128.247322, 0), Vector(0, 0, 1), 2.539999), math.radians(-0.000021), math.radians(90.000021)),  # 7
    Part.ArcOfCircle(Part.Circle(Vector(-501.65, 128.247321, 0), Vector(0, 0, 1), 2.54), math.radians(90.000003), math.radians(359.999997)),  # 8
], False)
sketch7.addConstraint([
    Sketcher.Constraint("Coincident", 0, 2, 1, 1),
    Sketcher.Constraint("Coincident", 1, 2, 2, 1),
    Sketcher.Constraint("Coincident", 2, 2, 3, 1),
    Sketcher.Constraint("Coincident", 3, 2, 0, 1),
    Sketcher.Constraint("Tangent", 7, 1, 8, 2),
    Sketcher.Constraint("Coincident", 8, 1, 7, 2),
    Sketcher.Constraint("Vertical", 0),
    Sketcher.Constraint("Horizontal", 1),
    Sketcher.Constraint("Vertical", 2),
    Sketcher.Constraint("Horizontal", 3),
    Sketcher.Constraint("Equal", 4, 5),
    Sketcher.Constraint("Equal", 5, 6),
    Sketcher.Constraint("Equal", 6, 7),
    Sketcher.Constraint("Symmetric", 5, 3, 6, 3, -1),
    Sketcher.Constraint("Symmetric", 4, 3, 7, 3, -1),
    Sketcher.Constraint("Horizontal", 8, 3, 7, 1),
    Sketcher.Constraint("Vertical", 4, 3, 5, 3),
    Sketcher.Constraint("Vertical", 7, 3, 8, 1),
    Sketcher.Constraint("Diameter", 4, Q("0.2 in")),
    Sketcher.Constraint("DistanceX", 1, 2, 1, 1, Q("0.5 in")),
    Sketcher.Constraint("DistanceX", 1, 2, -1, 1, Q("20 in")),
    Sketcher.Constraint("DistanceX", 4, 3, -1, 1, Q("19.75 in")),
    Sketcher.Constraint("DistanceY", 4, 3, 0, 2, Q("11.78125 in")),
    Sketcher.Constraint("DistanceY", 2, 2, 8, 3, Q("11.78125 in")),
    Sketcher.Constraint("DistanceY", 0, 1, 0, 2, 341.992858),
    Sketcher.Constraint("DistanceY", 4, 3, 6, 3, 170.996428),
])
pad7 = doc.addObject("PartDesign::Pad", "Pad006")
body7.addObject(pad7)
pad7.Profile = sketch7
pad7.Length = Q("0.125 in")
pad7.Midplane = True

doc.recompute()
